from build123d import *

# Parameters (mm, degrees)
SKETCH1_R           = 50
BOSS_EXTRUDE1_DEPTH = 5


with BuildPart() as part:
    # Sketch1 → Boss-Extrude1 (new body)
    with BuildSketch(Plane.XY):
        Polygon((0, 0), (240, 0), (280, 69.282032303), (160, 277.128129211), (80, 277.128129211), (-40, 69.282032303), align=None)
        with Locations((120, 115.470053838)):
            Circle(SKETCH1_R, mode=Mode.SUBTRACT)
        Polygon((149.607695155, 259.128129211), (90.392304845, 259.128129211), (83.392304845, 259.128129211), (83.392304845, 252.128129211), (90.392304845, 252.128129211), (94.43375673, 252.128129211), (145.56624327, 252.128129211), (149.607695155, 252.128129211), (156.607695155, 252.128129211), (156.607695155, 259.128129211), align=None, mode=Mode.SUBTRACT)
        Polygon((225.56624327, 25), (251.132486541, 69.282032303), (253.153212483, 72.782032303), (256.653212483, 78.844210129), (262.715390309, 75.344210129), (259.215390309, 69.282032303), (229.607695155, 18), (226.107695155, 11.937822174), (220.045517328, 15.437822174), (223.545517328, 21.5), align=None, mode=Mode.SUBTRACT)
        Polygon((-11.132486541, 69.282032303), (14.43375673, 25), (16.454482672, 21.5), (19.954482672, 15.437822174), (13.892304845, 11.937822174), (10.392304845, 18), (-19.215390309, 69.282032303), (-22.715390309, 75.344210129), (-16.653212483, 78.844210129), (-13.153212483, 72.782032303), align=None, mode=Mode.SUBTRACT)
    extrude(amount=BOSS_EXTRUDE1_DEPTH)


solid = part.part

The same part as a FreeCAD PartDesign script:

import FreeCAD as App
import Part
import Sketcher
Q = App.Units.Quantity


def add_polygon(sketch, points):
    """Adds a closed chain of lines whose ends are joined by coincident constraints."""
    first, n = sketch.GeometryCount, len(points)
    for a, b in zip(points, points[1:] + points[:1]):
        sketch.addGeometry(Part.LineSegment(App.Vector(*a, 0), App.Vector(*b, 0)), False)
    for i in range(n):
        sketch.addConstraint(Sketcher.Constraint("Coincident", first + i, 2, first + (i + 1) % n, 1))

doc = App.newDocument("Part")
body = doc.addObject("PartDesign::Body", "Body")

sketch1 = doc.addObject("Sketcher::SketchObject", "Sketch")
body.addObject(sketch1)
sketch1.AttachmentSupport = (doc.XY_Plane, [""])
sketch1.MapMode = "FlatFace"
add_polygon(sketch1, [(0, 0), (240, 0), (280, 69.282032), (160, 277.128129), (80, 277.128129), (-40, 69.282032)])
add_polygon(sketch1, [(-13.153212, 72.782032), (-11.132487, 69.282032), (14.433757, 25), (16.454483, 21.5), (19.954483, 15.437822), (13.892305, 11.937822), (10.392305, 18), (-19.21539, 69.282032), (-22.71539, 75.34421), (-16.653212, 78.84421)])
sketch1.addGeometry(Part.Circle(App.Vector(120, 115.470054, 0), App.Vector(0, 0, 1), 50), False)
add_polygon(sketch1, [(223.545517, 21.5), (225.566243, 25), (251.132487, 69.282032), (253.153212, 72.782032), (256.653212, 78.84421), (262.71539, 75.34421), (259.21539, 69.282032), (229.607695, 18), (226.107695, 11.937822), (220.045517, 15.437822)])
add_polygon(sketch1, [(83.392305, 259.128129), (156.607695, 259.128129), (156.607695, 252.128129), (83.392305, 252.128129)])
sketch1.addConstraint([
    Sketcher.Constraint("Horizontal", 0),
    Sketcher.Constraint("Horizontal", 3),
    Sketcher.Constraint("Horizontal", 27),
    Sketcher.Constraint("Vertical", 28),
    Sketcher.Constraint("Horizontal", 29),
    Sketcher.Constraint("Vertical", 30),
    Sketcher.Constraint("Coincident", 5, 2, -1, 1),
    Sketcher.Constraint("Parallel", 1, 4),
    Sketcher.Constraint("Parallel", 2, 5),
    Sketcher.Constraint("Parallel", 5, 6),
    Sketcher.Constraint("Parallel", 6, 7),
    Sketcher.Constraint("Parallel", 7, 8),
    Sketcher.Constraint("Parallel", 8, 9),
    Sketcher.Constraint("Perpendicular", 9, 10),
    Sketcher.Constraint("Perpendicular", 10, 11),
    Sketcher.Constraint("Parallel", 11, 12),
    Sketcher.Constraint("Parallel", 12, 13),
    Sketcher.Constraint("Perpendicular", 13, 14),
    Sketcher.Constraint("Perpendicular", 14, 15),
    Sketcher.Constraint("Parallel", 4, 17),
    Sketcher.Constraint("Parallel", 17, 18),
    Sketcher.Constraint("Parallel", 18, 19),
    Sketcher.Constraint("Parallel", 19, 20),
    Sketcher.Constraint("Perpendicular", 20, 21),
    Sketcher.Constraint("Perpendicular", 21, 22),
    Sketcher.Constraint("Parallel", 22, 23),
    Sketcher.Constraint("Parallel", 23, 24),
    Sketcher.Constraint("Perpendicular", 24, 25),
    Sketcher.Constraint("Perpendicular", 25, 26),
    Sketcher.Constraint("Horizontal", 1, 2, 4, 2),
    Sketcher.Constraint("Horizontal", 4, 2, 6, 2),
    Sketcher.Constraint("Horizontal", 6, 2, 12, 2),
    Sketcher.Constraint("Horizontal", 7, 2, 17, 2),
    Sketcher.Constraint("Horizontal", 12, 2, 18, 2),
    Sketcher.Constraint("Horizontal", 15, 2, 19, 2),
    Sketcher.Constraint("Horizontal", 14, 2, 20, 2),
    Sketcher.Constraint("Horizontal", 13, 2, 21, 2),
    Sketcher.Constraint("Horizontal", 18, 2, 22, 2),
    Sketcher.Constraint("Horizontal", 11, 2, 23, 2),
    Sketcher.Constraint("Horizontal", 10, 2, 24, 2),
    Sketcher.Constraint("Horizontal", 8, 2, 26, 2),
    Sketcher.Constraint("Equal", 2, 4),
    Sketcher.Constraint("Equal", 6, 8),
    Sketcher.Constraint("Equal", 9, 10),
    Sketcher.Constraint("Equal", 10, 11),
    Sketcher.Constraint("Equal", 11, 13),
    Sketcher.Constraint("Equal", 14, 15),
    Sketcher.Constraint("Diameter", 16, Q("100 mm")),
    Sketcher.Constraint("DistanceX", 0, 1, 0, 2, Q("240 mm")),
    Sketcher.Constraint("DistanceX", 3, 2, 3, 1, Q("80 mm")),
    Sketcher.Constraint("DistanceY", 28, 2, 28, 1, Q("7 mm")),
    Sketcher.Constraint("Angle", 1, Q("60 deg")),
    Sketcher.Constraint("Distance", 1, Q("80 mm")),
    Sketcher.Constraint("Distance", 9, Q("7 mm")),
    Sketcher.Constraint("DistanceX", -1, 1, 16, 3, Q("120 mm")),
    Sketcher.Constraint("DistanceY", -1, 1, 7, 2, Q("25 mm")),
    Sketcher.Constraint("DistanceY", 27, 2, 2, 2, Q("18 mm")),
    Sketcher.Constraint("DistanceX", 27, 1, 27, 2, Q("73.21539 mm")),
    Sketcher.Constraint("DistanceX", 12, 2, -1, 1, Q("19.21539 mm")),
    Sketcher.Constraint("DistanceX", -1, 1, 21, 2, Q("262.71539 mm")),
    Sketcher.Constraint("DistanceY", 1, 2, 16, 3, Q("46.188022 mm")),
    Sketcher.Constraint("DistanceX", -1, 1, 27, 2, Q("156.607695 mm")),
])
pad1 = doc.addObject("PartDesign::Pad", "Pad")
body.addObject(pad1)
pad1.Profile = sketch1
pad1.Length = 5

doc.recompute()
